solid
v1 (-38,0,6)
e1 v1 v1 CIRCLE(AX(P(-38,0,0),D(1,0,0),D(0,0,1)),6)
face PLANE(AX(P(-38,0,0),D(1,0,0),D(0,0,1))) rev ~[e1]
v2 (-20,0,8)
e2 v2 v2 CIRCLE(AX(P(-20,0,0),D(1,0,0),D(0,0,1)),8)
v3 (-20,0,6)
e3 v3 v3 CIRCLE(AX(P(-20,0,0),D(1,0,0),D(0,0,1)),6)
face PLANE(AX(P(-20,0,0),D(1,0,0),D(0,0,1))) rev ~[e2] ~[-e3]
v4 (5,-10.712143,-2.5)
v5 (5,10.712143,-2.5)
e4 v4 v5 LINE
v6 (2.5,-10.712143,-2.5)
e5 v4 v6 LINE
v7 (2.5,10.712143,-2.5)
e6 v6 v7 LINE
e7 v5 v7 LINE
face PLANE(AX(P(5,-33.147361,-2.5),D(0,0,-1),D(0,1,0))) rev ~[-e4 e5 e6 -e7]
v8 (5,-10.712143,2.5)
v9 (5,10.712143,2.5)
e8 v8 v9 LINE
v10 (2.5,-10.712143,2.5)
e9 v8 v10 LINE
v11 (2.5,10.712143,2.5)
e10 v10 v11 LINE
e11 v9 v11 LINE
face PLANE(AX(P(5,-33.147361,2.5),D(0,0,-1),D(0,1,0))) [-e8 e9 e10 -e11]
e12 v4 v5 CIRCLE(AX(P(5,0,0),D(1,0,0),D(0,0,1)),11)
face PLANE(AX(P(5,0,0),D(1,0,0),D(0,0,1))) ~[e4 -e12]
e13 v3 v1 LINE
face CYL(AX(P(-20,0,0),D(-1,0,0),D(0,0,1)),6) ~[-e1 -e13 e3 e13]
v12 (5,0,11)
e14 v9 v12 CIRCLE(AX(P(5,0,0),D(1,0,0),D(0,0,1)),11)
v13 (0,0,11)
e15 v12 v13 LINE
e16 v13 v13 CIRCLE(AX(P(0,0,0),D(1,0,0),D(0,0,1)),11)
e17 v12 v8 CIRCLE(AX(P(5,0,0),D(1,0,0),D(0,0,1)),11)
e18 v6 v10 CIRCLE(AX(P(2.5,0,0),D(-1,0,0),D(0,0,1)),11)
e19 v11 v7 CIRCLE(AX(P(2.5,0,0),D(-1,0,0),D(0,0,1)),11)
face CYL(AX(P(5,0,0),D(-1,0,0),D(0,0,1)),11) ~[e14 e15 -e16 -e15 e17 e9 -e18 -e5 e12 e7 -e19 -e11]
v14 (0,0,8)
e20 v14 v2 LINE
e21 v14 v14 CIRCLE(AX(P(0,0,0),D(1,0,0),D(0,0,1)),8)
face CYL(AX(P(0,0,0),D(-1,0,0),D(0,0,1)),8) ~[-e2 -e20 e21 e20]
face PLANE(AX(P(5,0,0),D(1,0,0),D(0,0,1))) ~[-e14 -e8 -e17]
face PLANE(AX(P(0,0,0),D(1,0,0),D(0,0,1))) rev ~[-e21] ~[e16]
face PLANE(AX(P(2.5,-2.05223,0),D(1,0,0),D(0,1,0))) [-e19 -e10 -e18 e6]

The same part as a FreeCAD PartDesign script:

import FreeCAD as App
import Part
import Sketcher
from FreeCAD import Vector


def add_polygon(sketch, points):
    """Adds a closed chain of lines whose ends are joined by coincident constraints."""
    first, n = sketch.GeometryCount, len(points)
    for a, b in zip(points, points[1:] + points[:1]):
        sketch.addGeometry(Part.LineSegment(App.Vector(*a, 0), App.Vector(*b, 0)), False)
    for i in range(n):
        sketch.addConstraint(Sketcher.Constraint("Coincident", first + i, 2, first + (i + 1) % n, 1))

doc = App.newDocument("Part")
body = doc.addObject("PartDesign::Body", "Body")

# Sketch on XZ plane
sketch1 = body.newObject("Sketcher::SketchObject", "Sketch")
sketch1.AttachmentSupport = (doc.getObject("XZ_Plane"), [""])
sketch1.MapMode = "FlatFace"
add_polygon(sketch1, [(-38, 6), (-38, 0), (5, 0), (5, 11), (0, 11), (0, 8), (-20, 8), (-20, 6)])  # lines 0-7
sketch1.addConstraint(Sketcher.Constraint("Vertical", 0))
sketch1.addConstraint(Sketcher.Constraint("Horizontal", 1))
sketch1.addConstraint(Sketcher.Constraint("Vertical", 2))
sketch1.addConstraint(Sketcher.Constraint("Horizontal", 3))
sketch1.addConstraint(Sketcher.Constraint("Vertical", 4))
sketch1.addConstraint(Sketcher.Constraint("Horizontal", 5))
sketch1.addConstraint(Sketcher.Constraint("Vertical", 6))
sketch1.addConstraint(Sketcher.Constraint("Horizontal", 7))
sketch1.addConstraint(Sketcher.Constraint("PointOnObject", 0, 2, -1))
sketch1.addConstraint(Sketcher.Constraint("PointOnObject", 3, 2, -2))
sketch1.addConstraint(Sketcher.Constraint("DistanceX", 1, 1, 1, 2, 43.0))
sketch1.addConstraint(Sketcher.Constraint("DistanceX", 3, 2, 3, 1, 5.0))
sketch1.addConstraint(Sketcher.Constraint("DistanceX", 5, 2, 5, 1, 20.0))
sketch1.addConstraint(Sketcher.Constraint("DistanceY", 0, 2, 0, 1, 6.0))
sketch1.addConstraint(Sketcher.Constraint("DistanceY", 2, 1, 2, 2, 11.0))
sketch1.addConstraint(Sketcher.Constraint("DistanceY", 4, 2, 4, 1, 3.0))
revolution = body.newObject("PartDesign::Revolution", "Revolution")
revolution.Profile = sketch1
revolution.ReferenceAxis = (sketch1, ["H_Axis"])
revolution.Angle = 360

# Sketch on YZ plane
sketch2 = body.newObject("Sketcher::SketchObject", "Sketch001")
sketch2.AttachmentSupport = (doc.getObject("YZ_Plane"), [""])
sketch2.MapMode = "FlatFace"
sketch2.AttachmentOffset = App.Placement(Vector(0, 0, 5), App.Rotation())
add_polygon(sketch2, [(-33.147361, 2.5), (-33.147361, -2.5), (29.042901, -2.5), (29.042901, 2.5)])  # lines 0-3
sketch2.addConstraint(Sketcher.Constraint("Vertical", 0))
sketch2.addConstraint(Sketcher.Constraint("Horizontal", 1))
sketch2.addConstraint(Sketcher.Constraint("Vertical", 2))
sketch2.addConstraint(Sketcher.Constraint("Horizontal", 3))
sketch2.addConstraint(Sketcher.Constraint("DistanceY", 0, 2, 0, 1, 5.0))
sketch2.addConstraint(Sketcher.Constraint("DistanceY", 0, 2, -1, 1, 2.5))
sketch2.addConstraint(Sketcher.Constraint("DistanceX", 1, 1, 1, 2, 62.190262))
sketch2.addConstraint(Sketcher.Constraint("DistanceX", -1, 1, 1, 2, 29.042901))
pocket1 = body.newObject("PartDesign::Pocket", "Pocket")
pocket1.Profile = sketch2
pocket1.Length = 2.5

doc.recompute()
